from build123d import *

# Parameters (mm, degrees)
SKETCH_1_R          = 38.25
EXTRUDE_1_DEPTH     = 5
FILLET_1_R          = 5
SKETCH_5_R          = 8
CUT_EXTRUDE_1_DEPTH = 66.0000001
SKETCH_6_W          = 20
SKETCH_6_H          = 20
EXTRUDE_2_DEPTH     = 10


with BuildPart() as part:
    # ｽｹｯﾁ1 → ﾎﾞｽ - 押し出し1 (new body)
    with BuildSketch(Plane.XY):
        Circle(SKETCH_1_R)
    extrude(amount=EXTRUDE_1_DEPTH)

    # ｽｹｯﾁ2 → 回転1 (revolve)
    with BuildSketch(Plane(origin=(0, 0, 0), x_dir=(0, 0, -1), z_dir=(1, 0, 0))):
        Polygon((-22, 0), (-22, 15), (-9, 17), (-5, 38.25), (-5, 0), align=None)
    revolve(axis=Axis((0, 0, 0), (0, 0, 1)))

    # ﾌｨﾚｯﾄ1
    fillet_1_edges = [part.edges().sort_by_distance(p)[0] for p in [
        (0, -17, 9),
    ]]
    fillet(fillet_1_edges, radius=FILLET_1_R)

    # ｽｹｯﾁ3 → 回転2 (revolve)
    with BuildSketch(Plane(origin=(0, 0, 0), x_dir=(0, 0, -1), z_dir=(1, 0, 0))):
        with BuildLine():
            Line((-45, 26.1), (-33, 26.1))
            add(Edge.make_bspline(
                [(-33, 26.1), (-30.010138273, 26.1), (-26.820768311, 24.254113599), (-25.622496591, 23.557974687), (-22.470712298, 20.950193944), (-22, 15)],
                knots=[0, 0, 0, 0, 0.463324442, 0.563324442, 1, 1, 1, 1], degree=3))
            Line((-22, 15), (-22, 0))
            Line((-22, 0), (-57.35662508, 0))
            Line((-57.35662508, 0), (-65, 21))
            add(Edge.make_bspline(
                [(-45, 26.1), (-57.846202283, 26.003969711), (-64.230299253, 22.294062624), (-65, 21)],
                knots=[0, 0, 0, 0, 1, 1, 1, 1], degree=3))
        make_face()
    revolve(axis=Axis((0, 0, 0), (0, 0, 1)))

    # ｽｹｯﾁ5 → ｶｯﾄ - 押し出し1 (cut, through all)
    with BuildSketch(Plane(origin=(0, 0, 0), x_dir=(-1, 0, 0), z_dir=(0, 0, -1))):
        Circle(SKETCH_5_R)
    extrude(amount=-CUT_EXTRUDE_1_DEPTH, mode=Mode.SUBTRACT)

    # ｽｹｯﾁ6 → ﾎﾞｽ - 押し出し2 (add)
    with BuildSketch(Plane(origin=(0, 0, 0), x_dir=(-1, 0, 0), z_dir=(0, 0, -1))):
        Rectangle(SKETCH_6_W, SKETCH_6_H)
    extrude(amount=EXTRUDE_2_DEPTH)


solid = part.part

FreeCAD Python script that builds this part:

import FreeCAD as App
import Part
import Sketcher

V = App.Vector
Q = App.Units.Quantity


def edges_at(feature, points):
    """Names of the edges that pass closest to the given points."""
    edges = feature.Shape.Edges
    near = lambda p: min(range(len(edges)), key=lambda i: edges[i].distToShape(Part.Vertex(*p))[0])
    return sorted({f"Edge{near(p) + 1}" for p in points})

doc = App.newDocument("Part")
body = doc.addObject("PartDesign::Body", "Body")

# Sketch on XY plane
sketch1 = doc.addObject("Sketcher::SketchObject", "Sketch")
body.addObject(sketch1)
sketch1.AttachmentSupport = (doc.XY_Plane, [""])
sketch1.MapMode = "FlatFace"
sketch1.addGeometry(Part.Circle(V(0, 0, 0), V(0, 0, 1), 38), False)
sketch1.addConstraint(Sketcher.Constraint("Coincident", 0, 3, -1, 1))
sketch1.addConstraint(Sketcher.Constraint("Diameter", 0, Q("76.5 mm")))
pad1 = doc.addObject("PartDesign::Pad", "Pad")
body.addObject(pad1)
pad1.Profile = sketch1
pad1.Length = 5

# Sketch on YZ plane
sketch2 = doc.addObject("Sketcher::SketchObject", "Sketch001")
body.addObject(sketch2)
sketch2.AttachmentSupport = (doc.YZ_Plane, [""])
sketch2.MapMode = "FlatFace"
sketch2.addGeometry(Part.LineSegment(V(15, 22, 0), V(0, 22, 0)), False)
sketch2.addGeometry(Part.LineSegment(V(0, 22, 0), V(0, 5, 0)), False)
sketch2.addGeometry(Part.LineSegment(V(0, 5, 0), V(38, 5, 0)), False)
sketch2.addGeometry(Part.LineSegment(V(38, 5, 0), V(17, 9, 0)), False)
sketch2.addGeometry(Part.LineSegment(V(17, 9, 0), V(15, 22, 0)), False)
sketch2.addConstraint(Sketcher.Constraint("Coincident", 0, 2, 1, 1))
sketch2.addConstraint(Sketcher.Constraint("Coincident", 1, 2, 2, 1))
sketch2.addConstraint(Sketcher.Constraint("Coincident", 2, 2, 3, 1))
sketch2.addConstraint(Sketcher.Constraint("Coincident", 3, 2, 4, 1))
sketch2.addConstraint(Sketcher.Constraint("Coincident", 4, 2, 0, 1))
sketch2.addConstraint(Sketcher.Constraint("Horizontal", 0))
sketch2.addConstraint(Sketcher.Constraint("Vertical", 1))
sketch2.addConstraint(Sketcher.Constraint("Horizontal", 2))
sketch2.addConstraint(Sketcher.Constraint("PointOnObject", 0, 2, -2))
sketch2.addConstraint(Sketcher.Constraint("DistanceX", 0, 2, 0, 1, Q("15 mm")))
sketch2.addConstraint(Sketcher.Constraint("DistanceY", 1, 2, 1, 1, Q("17 mm")))
sketch2.addConstraint(Sketcher.Constraint("DistanceY", -1, 1, 0, 2, Q("22 mm")))
sketch2.addConstraint(Sketcher.Constraint("DistanceX", -1, 1, 3, 2, Q("17 mm")))
sketch2.addConstraint(Sketcher.Constraint("DistanceY", -1, 1, 3, 2, Q("9 mm")))
sketch2.addConstraint(Sketcher.Constraint("DistanceX", 2, 1, 2, 2, Q("38.25 mm")))
revolution = doc.addObject("PartDesign::Revolution", "Revolution")
body.addObject(revolution)
revolution.Profile = sketch2
revolution.ReferenceAxis = (sketch2, ["V_Axis"])
revolution.Angle = 360
doc.recompute()

fillet = doc.addObject("PartDesign::Fillet", "Fillet")
body.addObject(fillet)
fillet.Base = (revolution, edges_at(revolution, [(0, -17, 9)]))
fillet.Radius = 5

# Sketch on YZ plane
sketch3 = doc.addObject("Sketcher::SketchObject", "Sketch002")
body.addObject(sketch3)
sketch3.AttachmentSupport = (doc.YZ_Plane, [""])
sketch3.MapMode = "FlatFace"
sketch3.addGeometry(Part.LineSegment(V(26.1, 33, 0), V(26.1, 45, 0)), False)
sketch3.addGeometry(Part.BSplineCurve([V(26.1, 45, 0), V(26.00397, 57.846202, 0), V(22.294063, 64.230299, 0), V(21, 65, 0)], [4, 4], [0, 1], False, 3, [1, 1, 1, 1], False), False)
sketch3.addGeometry(Part.LineSegment(V(21, 65, 0), V(0, 57.356625, 0)), False)
sketch3.addGeometry(Part.LineSegment(V(0, 57.356625, 0), V(0, 22, 0)), False)
sketch3.addGeometry(Part.LineSegment(V(0, 22, 0), V(15, 22, 0)), False)
sketch3.addGeometry(Part.BSplineCurve([V(26.1, 33, 0), V(26.1, 30.010138, 0), V(24.254114, 26.820768, 0), V(23.557975, 25.622497, 0), V(20.950194, 22.470712, 0), V(15, 22, 0)], [4, 1, 1, 4], [0, 0.463324442, 0.563324442, 1], False, 3, [1, 1, 1, 1, 1, 1], False), False)
sketch3.addConstraint(Sketcher.Constraint("Block", 1))
sketch3.addConstraint(Sketcher.Constraint("Block", 5))
sketch3.addConstraint(Sketcher.Constraint("Coincident", 0, 2, 1, 1))
sketch3.addConstraint(Sketcher.Constraint("Coincident", 1, 2, 2, 1))
sketch3.addConstraint(Sketcher.Constraint("Coincident", 2, 2, 3, 1))
sketch3.addConstraint(Sketcher.Constraint("Coincident", 3, 2, 4, 1))
sketch3.addConstraint(Sketcher.Constraint("Coincident", 4, 2, 5, 2))
sketch3.addConstraint(Sketcher.Constraint("Coincident", 5, 1, 0, 1))
sketch3.addConstraint(Sketcher.Constraint("Vertical", 3))
sketch3.addConstraint(Sketcher.Constraint("Horizontal", 4))
sketch3.addConstraint(Sketcher.Constraint("PointOnObject", 2, 2, -2))
sketch3.addConstraint(Sketcher.Constraint("Angle", 2, Q("-160 deg")))
revolution2 = doc.addObject("PartDesign::Revolution", "Revolution001")
body.addObject(revolution2)
revolution2.Profile = sketch3
revolution2.ReferenceAxis = (sketch3, ["V_Axis"])
revolution2.Angle = 360

# Sketch on XY plane
sketch4 = doc.addObject("Sketcher::SketchObject", "Sketch003")
body.addObject(sketch4)
sketch4.AttachmentSupport = (doc.XY_Plane, [""])
sketch4.MapMode = "FlatFace"
sketch4.addGeometry(Part.Circle(V(0, 0, 0), V(0, 0, 1), 8), False)
sketch4.addConstraint(Sketcher.Constraint("Coincident", 0, 3, -1, 1))
sketch4.addConstraint(Sketcher.Constraint("Diameter", 0, Q("16 mm")))
pocket1 = doc.addObject("PartDesign::Pocket", "Pocket")
body.addObject(pocket1)
pocket1.Profile = sketch4
pocket1.Type = "ThroughAll"
pocket1.Reversed = True

# Sketch on XY plane
sketch5 = doc.addObject("Sketcher::SketchObject", "Sketch004")
body.addObject(sketch5)
sketch5.AttachmentSupport = (doc.XY_Plane, [""])
sketch5.MapMode = "FlatFace"
sketch5.addGeometry(Part.LineSegment(V(10, 10, 0), V(10, -10, 0)), False)
sketch5.addGeometry(Part.LineSegment(V(10, -10, 0), V(-10, -10, 0)), False)
sketch5.addGeometry(Part.LineSegment(V(-10, -10, 0), V(-10, 10, 0)), False)
sketch5.addGeometry(Part.LineSegment(V(-10, 10, 0), V(10, 10, 0)), False)
sketch5.addConstraint(Sketcher.Constraint("Coincident", 0, 2, 1, 1))
sketch5.addConstraint(Sketcher.Constraint("Coincident", 1, 2, 2, 1))
sketch5.addConstraint(Sketcher.Constraint("Coincident", 2, 2, 3, 1))
sketch5.addConstraint(Sketcher.Constraint("Coincident", 3, 2, 0, 1))
sketch5.addConstraint(Sketcher.Constraint("Vertical", 0))
sketch5.addConstraint(Sketcher.Constraint("Horizontal", 1))
sketch5.addConstraint(Sketcher.Constraint("Vertical", 2))
sketch5.addConstraint(Sketcher.Constraint("Horizontal", 3))
sketch5.addConstraint(Sketcher.Constraint("Symmetric", 0, 2, 2, 2, -1, 1))
sketch5.addConstraint(Sketcher.Constraint("Equal", 3, 0))
sketch5.addConstraint(Sketcher.Constraint("DistanceX", 1, 2, 1, 1, Q("20 mm")))
pad2 = doc.addObject("PartDesign::Pad", "Pad001")
body.addObject(pad2)
pad2.Profile = sketch5
pad2.Length = 10
pad2.Reversed = True

doc.recompute()
